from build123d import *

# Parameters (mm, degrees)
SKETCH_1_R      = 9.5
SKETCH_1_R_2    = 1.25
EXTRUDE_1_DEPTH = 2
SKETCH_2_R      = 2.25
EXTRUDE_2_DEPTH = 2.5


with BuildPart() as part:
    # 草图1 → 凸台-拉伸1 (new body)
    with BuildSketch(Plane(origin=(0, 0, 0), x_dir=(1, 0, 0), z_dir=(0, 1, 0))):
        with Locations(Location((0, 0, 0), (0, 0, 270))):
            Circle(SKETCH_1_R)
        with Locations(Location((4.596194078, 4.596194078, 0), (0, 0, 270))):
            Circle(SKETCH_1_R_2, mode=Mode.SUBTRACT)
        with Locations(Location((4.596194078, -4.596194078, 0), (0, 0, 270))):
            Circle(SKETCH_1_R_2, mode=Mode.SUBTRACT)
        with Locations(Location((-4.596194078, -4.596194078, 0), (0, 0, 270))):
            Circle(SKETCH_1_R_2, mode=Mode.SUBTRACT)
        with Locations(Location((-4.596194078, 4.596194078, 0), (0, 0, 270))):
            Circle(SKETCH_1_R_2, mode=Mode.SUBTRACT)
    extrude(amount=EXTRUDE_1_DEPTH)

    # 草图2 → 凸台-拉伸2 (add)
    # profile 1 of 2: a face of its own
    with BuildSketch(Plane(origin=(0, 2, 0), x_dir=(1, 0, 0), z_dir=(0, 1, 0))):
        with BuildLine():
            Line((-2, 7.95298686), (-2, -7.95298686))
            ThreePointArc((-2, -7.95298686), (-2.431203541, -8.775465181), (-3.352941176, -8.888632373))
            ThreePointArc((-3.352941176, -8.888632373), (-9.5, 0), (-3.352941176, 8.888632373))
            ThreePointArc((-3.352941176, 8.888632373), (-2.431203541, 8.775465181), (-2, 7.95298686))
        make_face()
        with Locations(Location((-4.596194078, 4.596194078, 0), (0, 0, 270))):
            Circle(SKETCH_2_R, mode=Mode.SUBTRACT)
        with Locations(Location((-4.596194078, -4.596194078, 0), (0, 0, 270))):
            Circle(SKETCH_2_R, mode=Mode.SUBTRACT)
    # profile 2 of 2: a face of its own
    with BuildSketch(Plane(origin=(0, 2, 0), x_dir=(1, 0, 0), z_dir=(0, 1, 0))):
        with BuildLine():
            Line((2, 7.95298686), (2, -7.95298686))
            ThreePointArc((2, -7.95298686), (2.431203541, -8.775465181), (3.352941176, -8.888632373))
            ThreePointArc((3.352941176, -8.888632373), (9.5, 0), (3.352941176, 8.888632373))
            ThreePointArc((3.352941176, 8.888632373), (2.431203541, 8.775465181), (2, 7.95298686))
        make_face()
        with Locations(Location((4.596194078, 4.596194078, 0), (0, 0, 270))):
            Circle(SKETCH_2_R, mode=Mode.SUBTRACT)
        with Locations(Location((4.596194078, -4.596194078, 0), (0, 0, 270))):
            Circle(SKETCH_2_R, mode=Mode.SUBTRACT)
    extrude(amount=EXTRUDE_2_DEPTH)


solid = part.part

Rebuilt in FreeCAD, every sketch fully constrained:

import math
import FreeCAD as App
import Part
import Sketcher
from FreeCAD import Vector

doc = App.newDocument("Part")
params = doc.addObject("Spreadsheet::Sheet", "Params")
for row, (alias, value) in enumerate([
    ("sketch1_diameter", "19 mm"),
    ("sketch1_diameter2", "2.5 mm"),
    ("pad1_length", "2 mm"),
    ("sketch2_radius", "1 mm"),
    ("sketch2_diameter", "4.5 mm"),
    ("sketch2_radius2", "9.5 mm"),
    ("pad2_length", "2.5 mm"),
], start=1):
    params.set(f"A{row}", alias)
    params.set(f"B{row}", "=" + value)
    params.setAlias(f"B{row}", alias)

body = doc.addObject("PartDesign::Body", "Body")

sketch1 = body.newObject("Sketcher::SketchObject", "Sketch")
sketch1.AttachmentSupport = (doc.getObject("XZ_Plane"), [""])
sketch1.MapMode = "FlatFace"
sketch1.addGeometry([
    Part.Circle(Vector(0, 0, 0), Vector(0, 0, 1), 9.5),
    Part.Circle(Vector(-4.6, -4.6, 0), Vector(0, 0, 1), 1.2),
    Part.Circle(Vector(-4.6, 4.6, 0), Vector(0, 0, 1), 1.2),
    Part.Circle(Vector(4.6, -4.6, 0), Vector(0, 0, 1), 1.2),
    Part.Circle(Vector(4.6, 4.6, 0), Vector(0, 0, 1), 1.2),
], False)
sketch1.addConstraint([
    Sketcher.Constraint("Coincident", 0, 3, -1, 1),
    Sketcher.Constraint("Equal", 1, 2),
    Sketcher.Constraint("Equal", 2, 3),
    Sketcher.Constraint("Equal", 3, 4),
    Sketcher.Constraint("Symmetric", 2, 3, 3, 3, -1, 1),
    Sketcher.Constraint("Symmetric", 1, 3, 4, 3, -1, 1),
    Sketcher.Constraint("Symmetric", 1, 3, 3, 3, -2),
    Sketcher.Constraint("Diameter", 0, 19.0),
    Sketcher.Constraint("Diameter", 1, 2.5),
    Sketcher.Constraint("DistanceY", 1, 3, 2, 3, 9.192388),
    Sketcher.Constraint("DistanceX", 1, 3, 3, 3, 9.192388),
])
sketch1.setExpression("Constraints[7]", "Params.sketch1_diameter")
sketch1.setExpression("Constraints[8]", "Params.sketch1_diameter2")
pad1 = body.newObject("PartDesign::Pad", "Pad")
pad1.Profile = sketch1
pad1.setExpression("Length", "Params.pad1_length")
pad1.Reversed = True

sketch2 = body.newObject("Sketcher::SketchObject", "Sketch001")
sketch2.AttachmentSupport = (doc.getObject("XZ_Plane"), [""])
sketch2.MapMode = "FlatFace"
sketch2.AttachmentOffset = App.Placement(Vector(0, 0, -2), App.Rotation())
sketch2.addGeometry([
    Part.LineSegment(Vector(-2, 8, 0), Vector(-2, -8, 0)),
    Part.ArcOfCircle(Part.Circle(Vector(-3, -8, 0), Vector(0, 0, 1), 1), math.radians(-111), math.radians(0)),
    Part.ArcOfCircle(Part.Circle(Vector(0, 0, 0), Vector(0, 0, 1), 9.5), math.radians(111), math.radians(249)),
    Part.ArcOfCircle(Part.Circle(Vector(-3, 8, 0), Vector(0, 0, 1), 1), math.radians(0), math.radians(111)),
    Part.Circle(Vector(-4.6, 4.6, 0), Vector(0, 0, 1), 2.2),
    Part.Circle(Vector(-4.6, -4.6, 0), Vector(0, 0, 1), 2.2),
    Part.LineSegment(Vector(2, -8, 0), Vector(2, 8, 0)),
    Part.ArcOfCircle(Part.Circle(Vector(3, 8, 0), Vector(0, 0, 1), 1), math.radians(69), math.radians(180)),
    Part.ArcOfCircle(Part.Circle(Vector(0, 0, 0), Vector(0, 0, 1), 9.5), math.radians(-69), math.radians(69)),
    Part.ArcOfCircle(Part.Circle(Vector(3, -8, 0), Vector(0, 0, 1), 1), math.radians(180), math.radians(291)),
    Part.Circle(Vector(4.6, 4.6, 0), Vector(0, 0, 1), 2.2),
    Part.Circle(Vector(4.6, -4.6, 0), Vector(0, 0, 1), 2.2),
], False)
sketch2.addConstraint([
    Sketcher.Constraint("Tangent", 0, 2, 1, 2),
    Sketcher.Constraint("Tangent", 1, 1, 2, 2),
    Sketcher.Constraint("Tangent", 2, 1, 3, 2),
    Sketcher.Constraint("Tangent", 3, 1, 0, 1),
    Sketcher.Constraint("Tangent", 6, 2, 7, 2),
    Sketcher.Constraint("Tangent", 7, 1, 8, 2),
    Sketcher.Constraint("Tangent", 8, 1, 9, 2),
    Sketcher.Constraint("Tangent", 9, 1, 6, 1),
    Sketcher.Constraint("Vertical", 0),
    Sketcher.Constraint("Vertical", 6),
    Sketcher.Constraint("Coincident", 2, 3, -1, 1),
    Sketcher.Constraint("Coincident", 8, 3, -1, 1),
    Sketcher.Constraint("Equal", 1, 3),
    Sketcher.Constraint("Equal", 4, 5),
    Sketcher.Constraint("Equal", 3, 7),
    Sketcher.Constraint("Equal", 2, 8),
    Sketcher.Constraint("Equal", 7, 9),
    Sketcher.Constraint("Equal", 5, 10),
    Sketcher.Constraint("Equal", 10, 11),
    Sketcher.Constraint("Symmetric", 5, 3, 10, 3, -1, 1),
    Sketcher.Constraint("Symmetric", 4, 3, 11, 3, -1, 1),
    Sketcher.Constraint("Symmetric", 4, 3, 10, 3, -2),
    Sketcher.Constraint("Horizontal", 3, 3, 7, 3),
    Sketcher.Constraint("Radius", 1, 1.0),
    Sketcher.Constraint("Diameter", 4, 4.5),
    Sketcher.Constraint("Radius", 2, 9.5),
    Sketcher.Constraint("DistanceX", 1, 3, -1, 1, 3.0),
    Sketcher.Constraint("DistanceY", 1, 3, 4, 3, 12.549181),
    Sketcher.Constraint("DistanceX", 4, 3, 10, 3, 9.192388),
])
sketch2.setExpression("Constraints[23]", "Params.sketch2_radius")
sketch2.setExpression("Constraints[24]", "Params.sketch2_diameter")
sketch2.setExpression("Constraints[25]", "Params.sketch2_radius2")
pad2 = body.newObject("PartDesign::Pad", "Pad001")
pad2.Profile = sketch2
pad2.setExpression("Length", "Params.pad2_length")
pad2.Reversed = True

doc.recompute()
